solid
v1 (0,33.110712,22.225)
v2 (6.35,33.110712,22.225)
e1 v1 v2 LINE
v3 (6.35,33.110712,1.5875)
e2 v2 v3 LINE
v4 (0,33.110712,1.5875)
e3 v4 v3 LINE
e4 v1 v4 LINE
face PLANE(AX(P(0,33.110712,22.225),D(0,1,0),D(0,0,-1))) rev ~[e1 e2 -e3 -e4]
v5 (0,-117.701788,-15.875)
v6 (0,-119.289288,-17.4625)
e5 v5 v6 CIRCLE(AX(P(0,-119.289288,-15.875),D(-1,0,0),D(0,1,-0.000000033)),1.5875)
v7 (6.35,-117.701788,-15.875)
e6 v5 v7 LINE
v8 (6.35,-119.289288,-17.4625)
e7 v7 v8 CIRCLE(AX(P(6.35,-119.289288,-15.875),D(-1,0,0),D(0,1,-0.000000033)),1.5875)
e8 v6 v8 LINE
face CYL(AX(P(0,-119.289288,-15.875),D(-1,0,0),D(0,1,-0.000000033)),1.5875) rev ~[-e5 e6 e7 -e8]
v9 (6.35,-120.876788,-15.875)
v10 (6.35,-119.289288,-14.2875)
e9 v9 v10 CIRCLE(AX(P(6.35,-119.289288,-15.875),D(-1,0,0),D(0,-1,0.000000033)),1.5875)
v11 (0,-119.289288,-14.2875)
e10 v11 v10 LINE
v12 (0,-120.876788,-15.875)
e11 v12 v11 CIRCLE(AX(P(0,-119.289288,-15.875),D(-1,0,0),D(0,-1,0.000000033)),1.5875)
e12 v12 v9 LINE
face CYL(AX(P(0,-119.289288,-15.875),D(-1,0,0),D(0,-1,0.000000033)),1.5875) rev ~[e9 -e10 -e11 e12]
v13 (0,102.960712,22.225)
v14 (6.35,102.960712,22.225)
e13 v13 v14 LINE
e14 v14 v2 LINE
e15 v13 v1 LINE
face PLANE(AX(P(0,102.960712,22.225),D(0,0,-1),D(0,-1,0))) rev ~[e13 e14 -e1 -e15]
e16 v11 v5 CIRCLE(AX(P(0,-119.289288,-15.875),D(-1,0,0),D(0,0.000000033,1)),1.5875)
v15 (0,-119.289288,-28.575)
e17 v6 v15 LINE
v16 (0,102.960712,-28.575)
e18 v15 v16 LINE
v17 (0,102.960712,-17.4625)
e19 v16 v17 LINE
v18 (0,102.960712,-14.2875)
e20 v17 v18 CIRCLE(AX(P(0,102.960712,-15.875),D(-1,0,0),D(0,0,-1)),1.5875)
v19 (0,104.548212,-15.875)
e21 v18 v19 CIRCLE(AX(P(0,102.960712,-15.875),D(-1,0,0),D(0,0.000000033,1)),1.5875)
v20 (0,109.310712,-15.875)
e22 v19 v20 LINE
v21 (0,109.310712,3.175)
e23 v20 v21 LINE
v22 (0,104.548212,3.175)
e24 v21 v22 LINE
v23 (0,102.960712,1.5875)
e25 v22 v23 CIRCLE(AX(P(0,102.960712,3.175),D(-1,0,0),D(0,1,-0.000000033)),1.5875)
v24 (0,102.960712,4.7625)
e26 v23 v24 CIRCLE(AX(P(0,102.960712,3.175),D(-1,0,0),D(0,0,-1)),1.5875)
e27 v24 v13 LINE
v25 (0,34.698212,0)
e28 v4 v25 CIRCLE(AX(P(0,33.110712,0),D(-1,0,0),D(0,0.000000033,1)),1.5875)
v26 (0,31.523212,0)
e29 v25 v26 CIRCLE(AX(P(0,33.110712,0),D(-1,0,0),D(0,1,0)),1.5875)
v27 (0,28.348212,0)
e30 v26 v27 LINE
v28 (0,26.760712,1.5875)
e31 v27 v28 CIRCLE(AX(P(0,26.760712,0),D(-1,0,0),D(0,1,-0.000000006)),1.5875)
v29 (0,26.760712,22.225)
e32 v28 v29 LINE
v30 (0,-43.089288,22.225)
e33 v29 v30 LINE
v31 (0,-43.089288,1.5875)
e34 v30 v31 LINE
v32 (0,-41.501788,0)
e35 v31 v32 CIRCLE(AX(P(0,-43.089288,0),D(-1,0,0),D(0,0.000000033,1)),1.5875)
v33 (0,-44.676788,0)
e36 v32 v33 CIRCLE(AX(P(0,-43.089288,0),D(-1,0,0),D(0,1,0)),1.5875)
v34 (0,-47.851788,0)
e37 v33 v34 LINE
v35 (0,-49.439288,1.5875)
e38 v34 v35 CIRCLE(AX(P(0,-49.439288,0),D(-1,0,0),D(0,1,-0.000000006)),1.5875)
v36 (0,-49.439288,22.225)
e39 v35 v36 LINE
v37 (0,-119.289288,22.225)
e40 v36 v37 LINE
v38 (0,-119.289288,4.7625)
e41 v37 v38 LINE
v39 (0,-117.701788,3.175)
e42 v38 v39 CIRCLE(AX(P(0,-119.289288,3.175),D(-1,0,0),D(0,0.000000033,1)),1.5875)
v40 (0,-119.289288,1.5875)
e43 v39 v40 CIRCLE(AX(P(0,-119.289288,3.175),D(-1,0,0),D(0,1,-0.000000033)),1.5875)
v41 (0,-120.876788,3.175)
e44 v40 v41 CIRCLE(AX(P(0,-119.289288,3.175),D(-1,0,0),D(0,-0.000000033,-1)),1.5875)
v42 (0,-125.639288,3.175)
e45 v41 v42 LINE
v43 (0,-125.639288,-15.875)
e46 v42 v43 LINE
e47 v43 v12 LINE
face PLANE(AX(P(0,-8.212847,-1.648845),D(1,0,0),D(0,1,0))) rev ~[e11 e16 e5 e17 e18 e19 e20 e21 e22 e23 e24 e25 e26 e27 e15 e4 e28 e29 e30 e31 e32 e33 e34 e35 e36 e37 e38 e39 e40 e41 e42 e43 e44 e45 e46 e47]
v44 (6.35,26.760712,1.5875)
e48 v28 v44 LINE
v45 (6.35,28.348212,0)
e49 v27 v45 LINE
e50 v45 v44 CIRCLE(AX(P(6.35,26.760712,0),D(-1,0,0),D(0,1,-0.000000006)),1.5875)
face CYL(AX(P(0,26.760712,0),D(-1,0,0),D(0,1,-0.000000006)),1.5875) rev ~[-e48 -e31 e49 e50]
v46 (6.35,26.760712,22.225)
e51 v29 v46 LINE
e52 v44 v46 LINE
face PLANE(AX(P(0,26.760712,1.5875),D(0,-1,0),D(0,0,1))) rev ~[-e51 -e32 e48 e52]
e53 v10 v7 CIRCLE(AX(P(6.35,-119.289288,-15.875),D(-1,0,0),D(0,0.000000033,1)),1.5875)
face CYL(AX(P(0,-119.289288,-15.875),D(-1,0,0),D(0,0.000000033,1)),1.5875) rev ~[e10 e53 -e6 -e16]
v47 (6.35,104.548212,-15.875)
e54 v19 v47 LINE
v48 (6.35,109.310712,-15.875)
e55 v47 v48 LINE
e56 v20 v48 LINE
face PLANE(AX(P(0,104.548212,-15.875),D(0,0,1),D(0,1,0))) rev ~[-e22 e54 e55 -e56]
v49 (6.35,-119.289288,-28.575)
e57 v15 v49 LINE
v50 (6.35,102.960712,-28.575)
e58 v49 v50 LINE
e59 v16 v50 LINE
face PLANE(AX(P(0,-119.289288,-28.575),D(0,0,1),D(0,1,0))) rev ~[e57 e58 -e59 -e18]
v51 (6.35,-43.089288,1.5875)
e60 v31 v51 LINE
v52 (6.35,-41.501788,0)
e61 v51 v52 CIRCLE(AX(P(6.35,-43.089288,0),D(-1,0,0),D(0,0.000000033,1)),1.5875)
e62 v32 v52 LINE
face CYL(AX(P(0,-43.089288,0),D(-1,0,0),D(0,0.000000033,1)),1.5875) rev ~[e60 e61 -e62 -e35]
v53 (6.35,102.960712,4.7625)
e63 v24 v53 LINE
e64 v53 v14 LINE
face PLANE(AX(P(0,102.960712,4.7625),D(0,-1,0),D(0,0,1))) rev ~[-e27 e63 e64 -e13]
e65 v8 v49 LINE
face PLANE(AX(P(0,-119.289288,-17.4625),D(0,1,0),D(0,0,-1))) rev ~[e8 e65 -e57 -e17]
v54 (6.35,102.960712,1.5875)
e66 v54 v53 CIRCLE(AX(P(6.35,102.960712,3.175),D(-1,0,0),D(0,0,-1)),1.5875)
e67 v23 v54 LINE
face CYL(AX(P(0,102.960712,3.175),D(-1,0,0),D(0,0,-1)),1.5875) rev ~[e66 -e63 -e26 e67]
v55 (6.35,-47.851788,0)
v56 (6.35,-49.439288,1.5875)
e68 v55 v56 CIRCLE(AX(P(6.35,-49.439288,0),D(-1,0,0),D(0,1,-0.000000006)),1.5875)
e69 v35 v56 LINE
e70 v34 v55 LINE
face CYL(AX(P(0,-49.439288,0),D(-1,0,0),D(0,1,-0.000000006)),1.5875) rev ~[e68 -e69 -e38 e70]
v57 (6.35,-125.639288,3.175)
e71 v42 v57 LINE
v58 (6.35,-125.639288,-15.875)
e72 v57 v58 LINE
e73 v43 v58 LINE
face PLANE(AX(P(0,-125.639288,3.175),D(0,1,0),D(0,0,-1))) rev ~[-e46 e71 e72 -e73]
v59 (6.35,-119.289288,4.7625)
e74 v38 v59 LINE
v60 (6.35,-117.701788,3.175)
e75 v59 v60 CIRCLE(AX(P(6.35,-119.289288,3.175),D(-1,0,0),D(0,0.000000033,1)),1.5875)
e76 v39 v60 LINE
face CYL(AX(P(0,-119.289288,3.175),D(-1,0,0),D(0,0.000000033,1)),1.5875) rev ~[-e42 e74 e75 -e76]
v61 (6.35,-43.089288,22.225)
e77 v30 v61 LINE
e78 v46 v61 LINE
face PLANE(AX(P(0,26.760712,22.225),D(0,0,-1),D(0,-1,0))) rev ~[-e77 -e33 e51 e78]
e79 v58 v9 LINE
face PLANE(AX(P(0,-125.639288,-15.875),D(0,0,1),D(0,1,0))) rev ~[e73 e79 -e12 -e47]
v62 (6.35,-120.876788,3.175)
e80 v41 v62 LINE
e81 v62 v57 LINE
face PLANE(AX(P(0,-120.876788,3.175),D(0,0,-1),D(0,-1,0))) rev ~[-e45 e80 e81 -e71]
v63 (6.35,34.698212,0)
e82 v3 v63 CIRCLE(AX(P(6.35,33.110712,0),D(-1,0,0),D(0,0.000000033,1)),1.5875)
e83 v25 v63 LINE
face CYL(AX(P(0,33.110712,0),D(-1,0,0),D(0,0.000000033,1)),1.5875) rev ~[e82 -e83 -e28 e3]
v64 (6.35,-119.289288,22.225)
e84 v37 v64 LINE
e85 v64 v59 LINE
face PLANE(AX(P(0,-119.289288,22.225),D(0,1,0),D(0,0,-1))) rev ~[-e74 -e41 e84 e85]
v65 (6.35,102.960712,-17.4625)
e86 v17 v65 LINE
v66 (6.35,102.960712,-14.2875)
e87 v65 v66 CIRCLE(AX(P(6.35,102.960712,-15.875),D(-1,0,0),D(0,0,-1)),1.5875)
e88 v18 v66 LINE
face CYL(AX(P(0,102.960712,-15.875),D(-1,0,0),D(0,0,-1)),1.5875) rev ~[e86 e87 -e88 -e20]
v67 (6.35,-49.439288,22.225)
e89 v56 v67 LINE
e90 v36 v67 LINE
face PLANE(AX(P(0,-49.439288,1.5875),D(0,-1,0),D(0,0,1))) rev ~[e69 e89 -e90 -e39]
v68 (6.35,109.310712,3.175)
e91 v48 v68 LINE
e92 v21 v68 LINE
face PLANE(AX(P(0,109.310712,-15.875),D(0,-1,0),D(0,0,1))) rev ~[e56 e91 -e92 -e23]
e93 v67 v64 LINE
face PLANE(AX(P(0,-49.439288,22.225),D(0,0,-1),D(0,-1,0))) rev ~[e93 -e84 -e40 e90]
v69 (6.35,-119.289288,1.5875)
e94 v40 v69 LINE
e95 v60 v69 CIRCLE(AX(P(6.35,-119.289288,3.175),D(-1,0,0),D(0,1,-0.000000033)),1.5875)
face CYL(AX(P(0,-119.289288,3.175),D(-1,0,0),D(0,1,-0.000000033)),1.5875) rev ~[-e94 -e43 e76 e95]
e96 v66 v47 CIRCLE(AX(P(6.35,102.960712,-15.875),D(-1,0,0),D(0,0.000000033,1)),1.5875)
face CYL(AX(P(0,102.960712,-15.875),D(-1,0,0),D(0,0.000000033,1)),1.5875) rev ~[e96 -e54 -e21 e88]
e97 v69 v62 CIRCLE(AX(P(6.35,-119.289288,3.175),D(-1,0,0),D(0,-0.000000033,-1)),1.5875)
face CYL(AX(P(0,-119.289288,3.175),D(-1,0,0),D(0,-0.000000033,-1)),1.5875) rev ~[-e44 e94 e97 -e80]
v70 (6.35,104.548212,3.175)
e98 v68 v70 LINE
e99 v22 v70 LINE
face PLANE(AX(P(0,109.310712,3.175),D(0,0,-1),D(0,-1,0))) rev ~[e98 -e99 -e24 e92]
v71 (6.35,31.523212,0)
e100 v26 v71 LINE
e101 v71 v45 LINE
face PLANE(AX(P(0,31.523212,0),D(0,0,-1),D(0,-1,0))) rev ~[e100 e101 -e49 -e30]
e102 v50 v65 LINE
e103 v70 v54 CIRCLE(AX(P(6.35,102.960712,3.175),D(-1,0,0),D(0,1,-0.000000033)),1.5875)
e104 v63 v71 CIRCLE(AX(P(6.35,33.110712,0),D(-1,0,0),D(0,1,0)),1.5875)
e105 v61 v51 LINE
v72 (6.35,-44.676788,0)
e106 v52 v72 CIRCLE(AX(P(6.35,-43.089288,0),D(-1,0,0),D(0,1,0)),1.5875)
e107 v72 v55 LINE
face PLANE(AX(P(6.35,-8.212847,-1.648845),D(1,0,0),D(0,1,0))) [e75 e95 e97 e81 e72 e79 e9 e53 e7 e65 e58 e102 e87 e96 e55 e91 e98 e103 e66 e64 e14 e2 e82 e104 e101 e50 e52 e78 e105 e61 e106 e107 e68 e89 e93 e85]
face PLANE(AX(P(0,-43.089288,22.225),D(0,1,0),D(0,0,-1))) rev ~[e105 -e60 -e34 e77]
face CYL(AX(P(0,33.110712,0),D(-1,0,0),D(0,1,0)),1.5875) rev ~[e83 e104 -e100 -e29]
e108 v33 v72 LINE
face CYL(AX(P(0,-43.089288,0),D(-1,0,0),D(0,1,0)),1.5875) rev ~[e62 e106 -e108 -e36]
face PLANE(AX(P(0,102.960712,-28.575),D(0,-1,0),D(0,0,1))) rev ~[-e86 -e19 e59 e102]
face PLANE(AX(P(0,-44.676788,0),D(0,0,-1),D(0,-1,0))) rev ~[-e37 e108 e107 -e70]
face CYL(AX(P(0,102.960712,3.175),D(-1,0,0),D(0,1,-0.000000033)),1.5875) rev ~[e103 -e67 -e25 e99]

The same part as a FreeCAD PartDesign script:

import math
import FreeCAD as App
import Part
import Sketcher
from FreeCAD import Vector
Q = App.Units.Quantity

doc = App.newDocument("Part")
body = doc.addObject("PartDesign::Body", "Body")

sketch1 = doc.addObject("Sketcher::SketchObject", "Sketch")
body.addObject(sketch1)
sketch1.AttachmentSupport = (doc.YZ_Plane, [""])
sketch1.MapMode = "FlatFace"
sketch1.addGeometry([
    Part.LineSegment(Vector(-49.439288, 22.225, 0), Vector(-119.289288, 22.225, 0)),
    Part.LineSegment(Vector(-119.289288, 22.225, 0), Vector(-119.289288, 4.7625, 0)),
    Part.ArcOfCircle(Part.Circle(Vector(-119.289288, 3.175, 0), Vector(0, 0, 1), 1.5875), math.radians(0.000002), math.radians(89.999998)),
    Part.ArcOfCircle(Part.Circle(Vector(-119.289288, 3.175, 0), Vector(0, 0, 1), 1.5875), math.radians(-89.999998), math.radians(-0.000002)),
    Part.ArcOfCircle(Part.Circle(Vector(-119.289288, 3.175, 0), Vector(0, 0, 1), 1.5875), math.radians(-179.999998), math.radians(-90.000002)),
    Part.LineSegment(Vector(-120.876788, 3.175, 0), Vector(-125.639288, 3.175, 0)),
    Part.LineSegment(Vector(-125.639288, 3.175, 0), Vector(-125.639288, -15.875, 0)),
    Part.LineSegment(Vector(-125.639288, -15.875, 0), Vector(-120.876788, -15.875, 0)),
    Part.ArcOfCircle(Part.Circle(Vector(-119.289288, -15.875, 0), Vector(0, 0, 1), 1.5875), math.radians(90.000002), math.radians(179.999998)),
    Part.ArcOfCircle(Part.Circle(Vector(-119.289288, -15.875, 0), Vector(0, 0, 1), 1.5875), math.radians(0.000002), math.radians(89.999998)),
    Part.ArcOfCircle(Part.Circle(Vector(-119.289288, -15.875, 0), Vector(0, 0, 1), 1.5875), math.radians(-89.999998), math.radians(-0.000002)),
    Part.LineSegment(Vector(-119.289288, -17.4625, 0), Vector(-119.289288, -28.575, 0)),
    Part.LineSegment(Vector(-119.289288, -28.575, 0), Vector(102.960712, -28.575, 0)),
    Part.LineSegment(Vector(102.960712, -28.575, 0), Vector(102.960712, -17.4625, 0)),
    Part.ArcOfCircle(Part.Circle(Vector(102.960712, -15.875, 0), Vector(0, 0, 1), 1.5875), math.radians(90), math.radians(270)),
    Part.ArcOfCircle(Part.Circle(Vector(102.960712, -15.875, 0), Vector(0, 0, 1), 1.5875), math.radians(0.000002), math.radians(89.999998)),
    Part.LineSegment(Vector(104.548212, -15.875, 0), Vector(109.310712, -15.875, 0)),
    Part.LineSegment(Vector(109.310712, -15.875, 0), Vector(109.310712, 3.175, 0)),
    Part.LineSegment(Vector(109.310712, 3.175, 0), Vector(104.548212, 3.175, 0)),
    Part.ArcOfCircle(Part.Circle(Vector(102.960712, 3.175, 0), Vector(0, 0, 1), 1.5875), math.radians(-89.999998), math.radians(-0.000002)),
    Part.ArcOfCircle(Part.Circle(Vector(102.960712, 3.175, 0), Vector(0, 0, 1), 1.5875), math.radians(90), math.radians(270)),
    Part.LineSegment(Vector(102.960712, 4.7625, 0), Vector(102.960712, 22.225, 0)),
    Part.LineSegment(Vector(102.960712, 22.225, 0), Vector(33.110712, 22.225, 0)),
    Part.LineSegment(Vector(33.110712, 22.225, 0), Vector(33.110712, 1.5875, 0)),
    Part.ArcOfCircle(Part.Circle(Vector(33.110712, 0, 0), Vector(0, 0, 1), 1.5875), math.radians(0.000002), math.radians(89.999998)),
    Part.ArcOfCircle(Part.Circle(Vector(33.110712, 0, 0), Vector(0, 0, 1), 1.5875), math.radians(180), math.radians(360)),
    Part.LineSegment(Vector(31.523212, 0, 0), Vector(28.348212, 0, 0)),
    Part.ArcOfCircle(Part.Circle(Vector(26.760712, 0, 0), Vector(0, 0, 1), 1.5875), math.radians(90), math.radians(360)),
    Part.LineSegment(Vector(26.760712, 1.5875, 0), Vector(26.760712, 22.225, 0)),
    Part.LineSegment(Vector(26.760712, 22.225, 0), Vector(-43.089288, 22.225, 0)),
    Part.LineSegment(Vector(-43.089288, 22.225, 0), Vector(-43.089288, 1.5875, 0)),
    Part.ArcOfCircle(Part.Circle(Vector(-43.089288, 0, 0), Vector(0, 0, 1), 1.5875), math.radians(0.000002), math.radians(89.999998)),
    Part.ArcOfCircle(Part.Circle(Vector(-43.089288, 0, 0), Vector(0, 0, 1), 1.5875), math.radians(180), math.radians(360)),
    Part.LineSegment(Vector(-44.676788, 0, 0), Vector(-47.851788, 0, 0)),
    Part.ArcOfCircle(Part.Circle(Vector(-49.439288, 0, 0), Vector(0, 0, 1), 1.5875), math.radians(90), math.radians(360)),
    Part.LineSegment(Vector(-49.439288, 1.5875, 0), Vector(-49.439288, 22.225, 0)),
], False)
sketch1.addConstraint([
    Sketcher.Constraint("Coincident", 0, 2, 1, 1),
    Sketcher.Constraint("Coincident", 1, 2, 2, 2),
    Sketcher.Constraint("Tangent", 2, 1, 3, 2),
    Sketcher.Constraint("Tangent", 3, 1, 4, 2),
    Sketcher.Constraint("Coincident", 4, 1, 5, 1),
    Sketcher.Constraint("Coincident", 5, 2, 6, 1),
    Sketcher.Constraint("Coincident", 6, 2, 7, 1),
    Sketcher.Constraint("Coincident", 7, 2, 8, 2),
    Sketcher.Constraint("Tangent", 8, 1, 9, 2),
    Sketcher.Constraint("Tangent", 9, 1, 10, 2),
    Sketcher.Constraint("Coincident", 10, 1, 11, 1),
    Sketcher.Constraint("Coincident", 11, 2, 12, 1),
    Sketcher.Constraint("Coincident", 12, 2, 13, 1),
    Sketcher.Constraint("Coincident", 13, 2, 14, 2),
    Sketcher.Constraint("Tangent", 14, 1, 15, 2),
    Sketcher.Constraint("Coincident", 15, 1, 16, 1),
    Sketcher.Constraint("Coincident", 16, 2, 17, 1),
    Sketcher.Constraint("Coincident", 17, 2, 18, 1),
    Sketcher.Constraint("Coincident", 18, 2, 19, 2),
    Sketcher.Constraint("Tangent", 19, 1, 20, 2),
    Sketcher.Constraint("Coincident", 20, 1, 21, 1),
    Sketcher.Constraint("Coincident", 21, 2, 22, 1),
    Sketcher.Constraint("Coincident", 22, 2, 23, 1),
    Sketcher.Constraint("Coincident", 23, 2, 24, 2),
    Sketcher.Constraint("Tangent", 24, 1, 25, 2),
    Sketcher.Constraint("Coincident", 25, 1, 26, 1),
    Sketcher.Constraint("Coincident", 26, 2, 27, 2),
    Sketcher.Constraint("Coincident", 27, 1, 28, 1),
    Sketcher.Constraint("Coincident", 28, 2, 29, 1),
    Sketcher.Constraint("Coincident", 29, 2, 30, 1),
    Sketcher.Constraint("Coincident", 30, 2, 31, 2),
    Sketcher.Constraint("Tangent", 31, 1, 32, 2),
    Sketcher.Constraint("Coincident", 32, 1, 33, 1),
    Sketcher.Constraint("Coincident", 33, 2, 34, 2),
    Sketcher.Constraint("Coincident", 34, 1, 35, 1),
    Sketcher.Constraint("Coincident", 35, 2, 0, 1),
    Sketcher.Constraint("Horizontal", 0),
    Sketcher.Constraint("Vertical", 1),
    Sketcher.Constraint("Horizontal", 5),
    Sketcher.Constraint("Vertical", 6),
    Sketcher.Constraint("Horizontal", 7),
    Sketcher.Constraint("Vertical", 11),
    Sketcher.Constraint("Horizontal", 12),
    Sketcher.Constraint("Vertical", 13),
    Sketcher.Constraint("Horizontal", 16),
    Sketcher.Constraint("Vertical", 17),
    Sketcher.Constraint("Horizontal", 18),
    Sketcher.Constraint("Vertical", 21),
    Sketcher.Constraint("Horizontal", 22),
    Sketcher.Constraint("Vertical", 23),
    Sketcher.Constraint("Horizontal", 26),
    Sketcher.Constraint("Vertical", 28),
    Sketcher.Constraint("Horizontal", 29),
    Sketcher.Constraint("Vertical", 30),
    Sketcher.Constraint("Horizontal", 33),
    Sketcher.Constraint("Vertical", 35),
    Sketcher.Constraint("Coincident", 4, 3, 2, 3),
    Sketcher.Constraint("Coincident", 10, 3, 8, 3),
    Sketcher.Constraint("Equal", 4, 8),
    Sketcher.Constraint("Equal", 10, 14),
    Sketcher.Constraint("Equal", 14, 15),
    Sketcher.Constraint("Equal", 15, 19),
    Sketcher.Constraint("Equal", 19, 20),
    Sketcher.Constraint("Equal", 20, 24),
    Sketcher.Constraint("Equal", 24, 25),
    Sketcher.Constraint("Equal", 25, 27),
    Sketcher.Constraint("Equal", 27, 31),
    Sketcher.Constraint("Equal", 31, 32),
    Sketcher.Constraint("Equal", 32, 34),
    Sketcher.Constraint("PointOnObject", 24, 3, -1),
    Sketcher.Constraint("PointOnObject", 27, 3, -1),
    Sketcher.Constraint("PointOnObject", 31, 3, -1),
    Sketcher.Constraint("PointOnObject", 34, 3, -1),
    Sketcher.Constraint("PointOnObject", 24, 1, -1),
    Sketcher.Constraint("PointOnObject", 25, 1, -1),
    Sketcher.Constraint("PointOnObject", 31, 1, -1),
    Sketcher.Constraint("PointOnObject", 32, 1, -1),
    Sketcher.Constraint("Horizontal", 10, 3, 14, 3),
    Sketcher.Constraint("Horizontal", 4, 3, 19, 3),
    Sketcher.Constraint("Horizontal", 20, 3, 2, 1),
    Sketcher.Constraint("Horizontal", 2, 1, 4, 1),
    Sketcher.Constraint("Horizontal", 15, 3, 6, 2),
    Sketcher.Constraint("Horizontal", 7, 2, 9, 1),
    Sketcher.Constraint("Horizontal", 9, 1, 15, 1),
    Sketcher.Constraint("Horizontal", 5, 2, 17, 2),
    Sketcher.Constraint("Horizontal", 0, 2, 21, 2),
    Sketcher.Constraint("Horizontal", 19, 1, 23, 2),
    Sketcher.Constraint("Horizontal", 22, 2, 28, 2),
    Sketcher.Constraint("Vertical", 4, 3, 8, 3),
    Sketcher.Constraint("Vertical", 15, 3, 19, 3),
    Sketcher.Constraint("Vertical", 10, 3, 0, 2),
    Sketcher.Constraint("Vertical", 1, 2, 3, 1),
    Sketcher.Constraint("Vertical", 3, 1, 8, 1),
    Sketcher.Constraint("Vertical", 8, 1, 10, 1),
    Sketcher.Constraint("Vertical", 20, 3, 12, 2),
    Sketcher.Constraint("Vertical", 13, 2, 14, 1),
    Sketcher.Constraint("Vertical", 14, 1, 19, 1),
    Sketcher.Constraint("Vertical", 19, 1, 20, 1),
    Sketcher.Constraint("Vertical", 25, 3, 22, 2),
    Sketcher.Constraint("Vertical", 32, 3, 29, 2),
    Sketcher.Constraint("Equal", 7, 16),
    Sketcher.Constraint("Equal", 0, 22),
    Sketcher.Constraint("Equal", 22, 29),
    Sketcher.Constraint("Equal", 26, 33),
    Sketcher.Constraint("Radius", 2, Q("0.0625 in")),
    Sketcher.Constraint("DistanceX", 4, 3, 24, 3, Q("6 in")),
    Sketcher.Constraint("DistanceX", 27, 3, 19, 3, Q("3 in")),
    Sketcher.Constraint("DistanceX", 31, 3, 24, 3, Q("3 in")),
    Sketcher.Constraint("DistanceX", 0, 2, 0, 1, Q("2.75 in")),
    Sketcher.Constraint("DistanceY", 6, 2, 6, 1, Q("0.75 in")),
    Sketcher.Constraint("DistanceY", 10, 3, 0, 2, Q("1.5 in")),
    Sketcher.Constraint("DistanceY", 11, 2, 8, 3, Q("0.5 in")),
    Sketcher.Constraint("DistanceX", 5, 2, 5, 1, Q("0.1875 in")),
    Sketcher.Constraint("DistanceX", 2, 3, -1, 1, Q("119.289288 mm")),
])
pad1 = doc.addObject("PartDesign::Pad", "Pad")
body.addObject(pad1)
pad1.Profile = sketch1
pad1.Length = Q("0.25 in")

doc.recompute()
